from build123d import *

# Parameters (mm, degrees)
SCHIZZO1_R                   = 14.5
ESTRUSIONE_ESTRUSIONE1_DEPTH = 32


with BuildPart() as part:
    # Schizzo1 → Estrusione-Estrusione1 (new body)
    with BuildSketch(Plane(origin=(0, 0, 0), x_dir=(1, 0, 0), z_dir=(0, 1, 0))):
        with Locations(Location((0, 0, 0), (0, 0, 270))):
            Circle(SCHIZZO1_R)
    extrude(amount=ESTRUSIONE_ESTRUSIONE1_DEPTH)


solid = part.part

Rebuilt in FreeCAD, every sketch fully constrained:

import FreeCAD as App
import Part
import Sketcher

V = App.Vector
Q = App.Units.Quantity

doc = App.newDocument("Part")
body = doc.addObject("PartDesign::Body", "Body")

sketch1 = doc.addObject("Sketcher::SketchObject", "Sketch")
body.addObject(sketch1)
sketch1.AttachmentSupport = (doc.XZ_Plane, [""])
sketch1.MapMode = "FlatFace"
sketch1.addGeometry(Part.Circle(V(0, 0, 0), V(0, 0, 1), 14), False)
sketch1.addConstraint([
    Sketcher.Constraint("Coincident", 0, 3, -1, 1),
    Sketcher.Constraint("Diameter", 0, Q("29 mm")),
])
pad1 = doc.addObject("PartDesign::Pad", "Pad")
body.addObject(pad1)
pad1.Profile = sketch1
pad1.Length = 32
pad1.Reversed = True

doc.recompute()
